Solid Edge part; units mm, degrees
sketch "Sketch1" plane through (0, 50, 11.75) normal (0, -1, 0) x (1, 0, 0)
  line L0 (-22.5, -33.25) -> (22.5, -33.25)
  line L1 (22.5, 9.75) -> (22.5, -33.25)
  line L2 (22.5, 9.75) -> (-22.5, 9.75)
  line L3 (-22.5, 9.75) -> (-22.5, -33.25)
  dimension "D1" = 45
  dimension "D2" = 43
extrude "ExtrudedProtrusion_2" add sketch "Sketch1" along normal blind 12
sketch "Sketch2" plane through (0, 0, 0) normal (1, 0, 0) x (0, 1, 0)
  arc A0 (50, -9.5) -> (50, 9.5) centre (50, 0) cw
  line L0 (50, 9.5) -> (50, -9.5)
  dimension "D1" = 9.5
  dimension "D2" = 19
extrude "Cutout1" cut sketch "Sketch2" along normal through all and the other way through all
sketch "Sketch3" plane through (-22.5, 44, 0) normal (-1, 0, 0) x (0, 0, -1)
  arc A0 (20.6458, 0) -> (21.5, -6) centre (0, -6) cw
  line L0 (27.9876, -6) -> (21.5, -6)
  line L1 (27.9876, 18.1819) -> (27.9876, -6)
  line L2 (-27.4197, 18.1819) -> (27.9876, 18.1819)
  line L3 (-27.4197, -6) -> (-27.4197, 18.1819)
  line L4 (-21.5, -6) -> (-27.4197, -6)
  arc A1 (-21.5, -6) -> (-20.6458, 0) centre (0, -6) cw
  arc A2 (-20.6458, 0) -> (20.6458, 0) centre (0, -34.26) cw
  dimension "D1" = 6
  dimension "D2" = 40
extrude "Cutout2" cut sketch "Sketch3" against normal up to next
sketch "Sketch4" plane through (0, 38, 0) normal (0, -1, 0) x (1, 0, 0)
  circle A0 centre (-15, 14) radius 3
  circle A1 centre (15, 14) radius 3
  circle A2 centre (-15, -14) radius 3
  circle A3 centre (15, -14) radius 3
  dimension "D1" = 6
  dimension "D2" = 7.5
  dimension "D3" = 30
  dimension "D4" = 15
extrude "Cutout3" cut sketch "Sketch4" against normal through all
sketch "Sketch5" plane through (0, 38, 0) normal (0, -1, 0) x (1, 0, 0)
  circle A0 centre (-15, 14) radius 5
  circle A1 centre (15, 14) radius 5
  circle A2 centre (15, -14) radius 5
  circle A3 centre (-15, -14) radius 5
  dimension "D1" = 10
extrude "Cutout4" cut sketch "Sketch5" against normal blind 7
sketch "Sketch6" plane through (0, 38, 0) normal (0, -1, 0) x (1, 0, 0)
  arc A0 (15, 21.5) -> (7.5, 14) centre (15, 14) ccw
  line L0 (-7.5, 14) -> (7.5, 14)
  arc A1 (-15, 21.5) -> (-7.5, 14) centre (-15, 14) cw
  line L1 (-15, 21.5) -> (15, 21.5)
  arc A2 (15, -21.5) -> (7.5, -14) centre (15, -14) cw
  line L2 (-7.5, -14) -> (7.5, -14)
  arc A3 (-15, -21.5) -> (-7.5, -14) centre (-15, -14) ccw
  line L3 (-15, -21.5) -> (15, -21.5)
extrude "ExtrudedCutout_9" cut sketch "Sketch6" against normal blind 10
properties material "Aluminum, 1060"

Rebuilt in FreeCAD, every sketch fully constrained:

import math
import FreeCAD as App
import Part
import Sketcher
from FreeCAD import Vector
Q = App.Units.Quantity


def add_polygon(sketch, points):
    """Adds a closed chain of lines whose ends are joined by coincident constraints."""
    first, n = sketch.GeometryCount, len(points)
    for a, b in zip(points, points[1:] + points[:1]):
        sketch.addGeometry(Part.LineSegment(App.Vector(*a, 0), App.Vector(*b, 0)), False)
    for i in range(n):
        sketch.addConstraint(Sketcher.Constraint("Coincident", first + i, 2, first + (i + 1) % n, 1))

doc = App.newDocument("Part")
body = doc.addObject("PartDesign::Body", "Body")

# Sketch on XZ plane
sketch1 = body.newObject("Sketcher::SketchObject", "Sketch")
sketch1.AttachmentSupport = (doc.getObject("XZ_Plane"), [""])
sketch1.MapMode = "FlatFace"
sketch1.AttachmentOffset = App.Placement(Vector(0, 0, -50), App.Rotation())
add_polygon(sketch1, [(-22, 22), (-22, -22), (22, -22), (22, 22)])  # lines 0-3
sketch1.addConstraint(Sketcher.Constraint("Vertical", 0))
sketch1.addConstraint(Sketcher.Constraint("Horizontal", 1))
sketch1.addConstraint(Sketcher.Constraint("Vertical", 2))
sketch1.addConstraint(Sketcher.Constraint("Horizontal", 3))
sketch1.addConstraint(Sketcher.Constraint("Symmetric", 0, 2, 2, 2, -1, 1))
sketch1.addConstraint(Sketcher.Constraint("DistanceX", 0, 2, -1, 1, Q("22.5 mm")))
sketch1.addConstraint(Sketcher.Constraint("DistanceY", 0, 2, 0, 1, Q("43 mm")))
pad1 = body.newObject("PartDesign::Pad", "Pad")
pad1.Profile = sketch1
pad1.Length = 12

# Sketch on YZ plane
sketch2 = body.newObject("Sketcher::SketchObject", "Sketch001")
sketch2.AttachmentSupport = (doc.getObject("YZ_Plane"), [""])
sketch2.MapMode = "FlatFace"
sketch2.addGeometry(Part.ArcOfCircle(Part.Circle(Vector(50, 0, 0), Vector(0, 0, 1), 10), math.radians(90), math.radians(270)), False)
sketch2.addGeometry(Part.LineSegment(Vector(50, -10, 0), Vector(50, 10, 0)), False)
sketch2.addConstraint(Sketcher.Constraint("Coincident", 0, 1, 1, 2))
sketch2.addConstraint(Sketcher.Constraint("Coincident", 1, 1, 0, 2))
sketch2.addConstraint(Sketcher.Constraint("Vertical", 1))
sketch2.addConstraint(Sketcher.Constraint("PointOnObject", 0, 3, -1))
sketch2.addConstraint(Sketcher.Constraint("DistanceX", -1, 1, 0, 3, Q("50 mm")))
sketch2.addConstraint(Sketcher.Constraint("DistanceX", -1, 1, 0, 1, Q("50 mm")))
sketch2.addConstraint(Sketcher.Constraint("Radius", 0, Q("9.5 mm")))
pocket1 = body.newObject("PartDesign::Pocket", "Pocket")
pocket1.Profile = sketch2
pocket1.Type = "ThroughAll"
pocket1.Midplane = True

# Sketch on YZ plane
sketch3 = body.newObject("Sketcher::SketchObject", "Sketch002")
sketch3.AttachmentSupport = (doc.getObject("YZ_Plane"), [""])
sketch3.MapMode = "FlatFace"
sketch3.AttachmentOffset = App.Placement(Vector(0, 0, -22.5), App.Rotation())
sketch3.addGeometry(Part.ArcOfCircle(Part.Circle(Vector(78, 0, 0), Vector(0, 0, 1), 40), math.radians(149), math.radians(211)), False)
sketch3.addGeometry(Part.ArcOfCircle(Part.Circle(Vector(50, 0, 0), Vector(0, 0, 1), 22), math.radians(-106.2), math.radians(-90)), False)
sketch3.addGeometry(Part.LineSegment(Vector(50, -22, 0), Vector(50, -28, 0)), False)
sketch3.addGeometry(Part.LineSegment(Vector(50, -28, 0), Vector(26, -28, 0)), False)
sketch3.addGeometry(Part.LineSegment(Vector(26, -28, 0), Vector(26, 27, 0)), False)
sketch3.addGeometry(Part.LineSegment(Vector(26, 27, 0), Vector(50, 27, 0)), False)
sketch3.addGeometry(Part.LineSegment(Vector(50, 27, 0), Vector(50, 22, 0)), False)
sketch3.addGeometry(Part.ArcOfCircle(Part.Circle(Vector(50, 0, 0), Vector(0, 0, 1), 21), math.radians(90), math.radians(106.21)), False)
sketch3.addConstraint(Sketcher.Constraint("Coincident", 0, 2, 1, 1))
sketch3.addConstraint(Sketcher.Constraint("Coincident", 1, 2, 2, 1))
sketch3.addConstraint(Sketcher.Constraint("Coincident", 2, 2, 3, 1))
sketch3.addConstraint(Sketcher.Constraint("Coincident", 3, 2, 4, 1))
sketch3.addConstraint(Sketcher.Constraint("Coincident", 4, 2, 5, 1))
sketch3.addConstraint(Sketcher.Constraint("Coincident", 5, 2, 6, 1))
sketch3.addConstraint(Sketcher.Constraint("Coincident", 6, 2, 7, 1))
sketch3.addConstraint(Sketcher.Constraint("Coincident", 7, 2, 0, 1))
sketch3.addConstraint(Sketcher.Constraint("Vertical", 2))
sketch3.addConstraint(Sketcher.Constraint("Horizontal", 3))
sketch3.addConstraint(Sketcher.Constraint("Vertical", 4))
sketch3.addConstraint(Sketcher.Constraint("Horizontal", 5))
sketch3.addConstraint(Sketcher.Constraint("Vertical", 6))
sketch3.addConstraint(Sketcher.Constraint("Coincident", 7, 3, 1, 3))
sketch3.addConstraint(Sketcher.Constraint("Symmetric", 1, 2, 6, 2, -1))
sketch3.addConstraint(Sketcher.Constraint("PointOnObject", 0, 3, -1))
sketch3.addConstraint(Sketcher.Constraint("Vertical", 7, 3, 1, 2))
sketch3.addConstraint(Sketcher.Constraint("Radius", 0, Q("40 mm")))
sketch3.addConstraint(Sketcher.Constraint("DistanceX", -1, 1, 7, 3, Q("50 mm")))
sketch3.addConstraint(Sketcher.Constraint("DistanceX", -1, 1, 0, 2, Q("44 mm")))
sketch3.addConstraint(Sketcher.Constraint("Radius", 1, Q("21.501 mm")))
sketch3.addConstraint(Sketcher.Constraint("Radius", 7, Q("21.499 mm")))
sketch3.addConstraint(Sketcher.Constraint("DistanceX", 3, 2, 3, 1, Q("24.182 mm")))
sketch3.addConstraint(Sketcher.Constraint("DistanceY", 2, 2, 2, 1, Q("6.4876 mm")))
sketch3.addConstraint(Sketcher.Constraint("DistanceY", 4, 1, 4, 2, Q("55.4073 mm")))
pocket2 = body.newObject("PartDesign::Pocket", "Pocket001")
pocket2.Profile = sketch3
pocket2.Length = 45
pocket2.Reversed = True

# Sketch on XZ plane
sketch4 = body.newObject("Sketcher::SketchObject", "Sketch003")
sketch4.AttachmentSupport = (doc.getObject("XZ_Plane"), [""])
sketch4.MapMode = "FlatFace"
sketch4.AttachmentOffset = App.Placement(Vector(0, 0, -38), App.Rotation())
sketch4.addGeometry(Part.Circle(Vector(-15, 14, 0), Vector(0, 0, 1), 3), False)
sketch4.addGeometry(Part.Circle(Vector(15, 14, 0), Vector(0, 0, 1), 3), False)
sketch4.addGeometry(Part.Circle(Vector(-15, -14, 0), Vector(0, 0, 1), 3), False)
sketch4.addGeometry(Part.Circle(Vector(15, -14, 0), Vector(0, 0, 1), 3), False)
sketch4.addConstraint(Sketcher.Constraint("Equal", 0, 1))
sketch4.addConstraint(Sketcher.Constraint("Equal", 1, 2))
sketch4.addConstraint(Sketcher.Constraint("Equal", 2, 3))
sketch4.addConstraint(Sketcher.Constraint("Symmetric", 1, 3, 2, 3, -1, 1))
sketch4.addConstraint(Sketcher.Constraint("Symmetric", 0, 3, 3, 3, -1, 1))
sketch4.addConstraint(Sketcher.Constraint("Symmetric", 0, 3, 1, 3, -2))
sketch4.addConstraint(Sketcher.Constraint("Diameter", 0, Q("6 mm")))
sketch4.addConstraint(Sketcher.Constraint("DistanceX", 0, 3, -1, 1, Q("15 mm")))
sketch4.addConstraint(Sketcher.Constraint("DistanceY", -1, 1, 0, 3, Q("14 mm")))
pocket3 = body.newObject("PartDesign::Pocket", "Pocket002")
pocket3.Profile = sketch4
pocket3.Type = "ThroughAll"

# Sketch on XZ plane
sketch5 = body.newObject("Sketcher::SketchObject", "Sketch004")
sketch5.AttachmentSupport = (doc.getObject("XZ_Plane"), [""])
sketch5.MapMode = "FlatFace"
sketch5.AttachmentOffset = App.Placement(Vector(0, 0, -38), App.Rotation())
sketch5.addGeometry(Part.Circle(Vector(-15, 14, 0), Vector(0, 0, 1), 5), False)
sketch5.addGeometry(Part.Circle(Vector(15, 14, 0), Vector(0, 0, 1), 5), False)
sketch5.addGeometry(Part.Circle(Vector(15, -14, 0), Vector(0, 0, 1), 5), False)
sketch5.addGeometry(Part.Circle(Vector(-15, -14, 0), Vector(0, 0, 1), 5), False)
sketch5.addConstraint(Sketcher.Constraint("Equal", 0, 1))
sketch5.addConstraint(Sketcher.Constraint("Equal", 1, 2))
sketch5.addConstraint(Sketcher.Constraint("Equal", 2, 3))
sketch5.addConstraint(Sketcher.Constraint("Symmetric", 0, 3, 2, 3, -1, 1))
sketch5.addConstraint(Sketcher.Constraint("Symmetric", 1, 3, 3, 3, -1, 1))
sketch5.addConstraint(Sketcher.Constraint("Symmetric", 0, 3, 1, 3, -2))
sketch5.addConstraint(Sketcher.Constraint("Diameter", 0, Q("10 mm")))
sketch5.addConstraint(Sketcher.Constraint("DistanceX", 0, 3, -1, 1, Q("15 mm")))
sketch5.addConstraint(Sketcher.Constraint("DistanceY", -1, 1, 0, 3, Q("14 mm")))
pocket4 = body.newObject("PartDesign::Pocket", "Pocket003")
pocket4.Profile = sketch5
pocket4.Length = 7

# Sketch on XZ plane
sketch6 = body.newObject("Sketcher::SketchObject", "Sketch005")
sketch6.AttachmentSupport = (doc.getObject("XZ_Plane"), [""])
sketch6.MapMode = "FlatFace"
sketch6.AttachmentOffset = App.Placement(Vector(0, 0, -38), App.Rotation())
sketch6.addGeometry(Part.ArcOfCircle(Part.Circle(Vector(15, 14, 0), Vector(0, 0, 1), 8), math.radians(90), math.radians(180)), False)
sketch6.addGeometry(Part.LineSegment(Vector(15, 22, 0), Vector(-15, 22, 0)), False)
sketch6.addGeometry(Part.ArcOfCircle(Part.Circle(Vector(-15, 14, 0), Vector(0, 0, 1), 8), math.radians(0), math.radians(90)), False)
sketch6.addGeometry(Part.LineSegment(Vector(-8, 14, 0), Vector(8, 14, 0)), False)
sketch6.addGeometry(Part.LineSegment(Vector(-15, -22, 0), Vector(15, -22, 0)), False)
sketch6.addGeometry(Part.ArcOfCircle(Part.Circle(Vector(15, -14, 0), Vector(0, 0, 1), 8), math.radians(180), math.radians(270)), False)
sketch6.addGeometry(Part.LineSegment(Vector(8, -14, 0), Vector(-8, -14, 0)), False)
sketch6.addGeometry(Part.ArcOfCircle(Part.Circle(Vector(-15, -14, 0), Vector(0, 0, 1), 8), math.radians(-90), math.radians(0)), False)
sketch6.addConstraint(Sketcher.Constraint("Tangent", 0, 1, 1, 1))
sketch6.addConstraint(Sketcher.Constraint("Tangent", 1, 2, 2, 2))
sketch6.addConstraint(Sketcher.Constraint("Coincident", 2, 1, 3, 1))
sketch6.addConstraint(Sketcher.Constraint("Coincident", 3, 2, 0, 2))
sketch6.addConstraint(Sketcher.Constraint("Tangent", 4, 2, 5, 2))
sketch6.addConstraint(Sketcher.Constraint("Coincident", 5, 1, 6, 1))
sketch6.addConstraint(Sketcher.Constraint("Coincident", 6, 2, 7, 2))
sketch6.addConstraint(Sketcher.Constraint("Tangent", 7, 1, 4, 1))
sketch6.addConstraint(Sketcher.Constraint("Horizontal", 1))
sketch6.addConstraint(Sketcher.Constraint("Horizontal", 3))
sketch6.addConstraint(Sketcher.Constraint("Horizontal", 4))
sketch6.addConstraint(Sketcher.Constraint("Horizontal", 6))
sketch6.addConstraint(Sketcher.Constraint("Equal", 0, 2))
sketch6.addConstraint(Sketcher.Constraint("Equal", 2, 5))
sketch6.addConstraint(Sketcher.Constraint("Equal", 5, 7))
sketch6.addConstraint(Sketcher.Constraint("Symmetric", 2, 3, 5, 3, -1, 1))
sketch6.addConstraint(Sketcher.Constraint("Symmetric", 3, 2, 6, 2, -1, 1))
sketch6.addConstraint(Sketcher.Constraint("Horizontal", 0, 3, 2, 1))
sketch6.addConstraint(Sketcher.Constraint("Vertical", 0, 3, 5, 3))
sketch6.addConstraint(Sketcher.Constraint("Radius", 0, Q("7.5 mm")))
sketch6.addConstraint(Sketcher.Constraint("DistanceX", 1, 2, 1, 1, Q("30 mm")))
sketch6.addConstraint(Sketcher.Constraint("DistanceY", -1, 1, 0, 3, Q("14 mm")))
pocket5 = body.newObject("PartDesign::Pocket", "Pocket004")
pocket5.Profile = sketch6
pocket5.Length = 10

doc.recompute()
